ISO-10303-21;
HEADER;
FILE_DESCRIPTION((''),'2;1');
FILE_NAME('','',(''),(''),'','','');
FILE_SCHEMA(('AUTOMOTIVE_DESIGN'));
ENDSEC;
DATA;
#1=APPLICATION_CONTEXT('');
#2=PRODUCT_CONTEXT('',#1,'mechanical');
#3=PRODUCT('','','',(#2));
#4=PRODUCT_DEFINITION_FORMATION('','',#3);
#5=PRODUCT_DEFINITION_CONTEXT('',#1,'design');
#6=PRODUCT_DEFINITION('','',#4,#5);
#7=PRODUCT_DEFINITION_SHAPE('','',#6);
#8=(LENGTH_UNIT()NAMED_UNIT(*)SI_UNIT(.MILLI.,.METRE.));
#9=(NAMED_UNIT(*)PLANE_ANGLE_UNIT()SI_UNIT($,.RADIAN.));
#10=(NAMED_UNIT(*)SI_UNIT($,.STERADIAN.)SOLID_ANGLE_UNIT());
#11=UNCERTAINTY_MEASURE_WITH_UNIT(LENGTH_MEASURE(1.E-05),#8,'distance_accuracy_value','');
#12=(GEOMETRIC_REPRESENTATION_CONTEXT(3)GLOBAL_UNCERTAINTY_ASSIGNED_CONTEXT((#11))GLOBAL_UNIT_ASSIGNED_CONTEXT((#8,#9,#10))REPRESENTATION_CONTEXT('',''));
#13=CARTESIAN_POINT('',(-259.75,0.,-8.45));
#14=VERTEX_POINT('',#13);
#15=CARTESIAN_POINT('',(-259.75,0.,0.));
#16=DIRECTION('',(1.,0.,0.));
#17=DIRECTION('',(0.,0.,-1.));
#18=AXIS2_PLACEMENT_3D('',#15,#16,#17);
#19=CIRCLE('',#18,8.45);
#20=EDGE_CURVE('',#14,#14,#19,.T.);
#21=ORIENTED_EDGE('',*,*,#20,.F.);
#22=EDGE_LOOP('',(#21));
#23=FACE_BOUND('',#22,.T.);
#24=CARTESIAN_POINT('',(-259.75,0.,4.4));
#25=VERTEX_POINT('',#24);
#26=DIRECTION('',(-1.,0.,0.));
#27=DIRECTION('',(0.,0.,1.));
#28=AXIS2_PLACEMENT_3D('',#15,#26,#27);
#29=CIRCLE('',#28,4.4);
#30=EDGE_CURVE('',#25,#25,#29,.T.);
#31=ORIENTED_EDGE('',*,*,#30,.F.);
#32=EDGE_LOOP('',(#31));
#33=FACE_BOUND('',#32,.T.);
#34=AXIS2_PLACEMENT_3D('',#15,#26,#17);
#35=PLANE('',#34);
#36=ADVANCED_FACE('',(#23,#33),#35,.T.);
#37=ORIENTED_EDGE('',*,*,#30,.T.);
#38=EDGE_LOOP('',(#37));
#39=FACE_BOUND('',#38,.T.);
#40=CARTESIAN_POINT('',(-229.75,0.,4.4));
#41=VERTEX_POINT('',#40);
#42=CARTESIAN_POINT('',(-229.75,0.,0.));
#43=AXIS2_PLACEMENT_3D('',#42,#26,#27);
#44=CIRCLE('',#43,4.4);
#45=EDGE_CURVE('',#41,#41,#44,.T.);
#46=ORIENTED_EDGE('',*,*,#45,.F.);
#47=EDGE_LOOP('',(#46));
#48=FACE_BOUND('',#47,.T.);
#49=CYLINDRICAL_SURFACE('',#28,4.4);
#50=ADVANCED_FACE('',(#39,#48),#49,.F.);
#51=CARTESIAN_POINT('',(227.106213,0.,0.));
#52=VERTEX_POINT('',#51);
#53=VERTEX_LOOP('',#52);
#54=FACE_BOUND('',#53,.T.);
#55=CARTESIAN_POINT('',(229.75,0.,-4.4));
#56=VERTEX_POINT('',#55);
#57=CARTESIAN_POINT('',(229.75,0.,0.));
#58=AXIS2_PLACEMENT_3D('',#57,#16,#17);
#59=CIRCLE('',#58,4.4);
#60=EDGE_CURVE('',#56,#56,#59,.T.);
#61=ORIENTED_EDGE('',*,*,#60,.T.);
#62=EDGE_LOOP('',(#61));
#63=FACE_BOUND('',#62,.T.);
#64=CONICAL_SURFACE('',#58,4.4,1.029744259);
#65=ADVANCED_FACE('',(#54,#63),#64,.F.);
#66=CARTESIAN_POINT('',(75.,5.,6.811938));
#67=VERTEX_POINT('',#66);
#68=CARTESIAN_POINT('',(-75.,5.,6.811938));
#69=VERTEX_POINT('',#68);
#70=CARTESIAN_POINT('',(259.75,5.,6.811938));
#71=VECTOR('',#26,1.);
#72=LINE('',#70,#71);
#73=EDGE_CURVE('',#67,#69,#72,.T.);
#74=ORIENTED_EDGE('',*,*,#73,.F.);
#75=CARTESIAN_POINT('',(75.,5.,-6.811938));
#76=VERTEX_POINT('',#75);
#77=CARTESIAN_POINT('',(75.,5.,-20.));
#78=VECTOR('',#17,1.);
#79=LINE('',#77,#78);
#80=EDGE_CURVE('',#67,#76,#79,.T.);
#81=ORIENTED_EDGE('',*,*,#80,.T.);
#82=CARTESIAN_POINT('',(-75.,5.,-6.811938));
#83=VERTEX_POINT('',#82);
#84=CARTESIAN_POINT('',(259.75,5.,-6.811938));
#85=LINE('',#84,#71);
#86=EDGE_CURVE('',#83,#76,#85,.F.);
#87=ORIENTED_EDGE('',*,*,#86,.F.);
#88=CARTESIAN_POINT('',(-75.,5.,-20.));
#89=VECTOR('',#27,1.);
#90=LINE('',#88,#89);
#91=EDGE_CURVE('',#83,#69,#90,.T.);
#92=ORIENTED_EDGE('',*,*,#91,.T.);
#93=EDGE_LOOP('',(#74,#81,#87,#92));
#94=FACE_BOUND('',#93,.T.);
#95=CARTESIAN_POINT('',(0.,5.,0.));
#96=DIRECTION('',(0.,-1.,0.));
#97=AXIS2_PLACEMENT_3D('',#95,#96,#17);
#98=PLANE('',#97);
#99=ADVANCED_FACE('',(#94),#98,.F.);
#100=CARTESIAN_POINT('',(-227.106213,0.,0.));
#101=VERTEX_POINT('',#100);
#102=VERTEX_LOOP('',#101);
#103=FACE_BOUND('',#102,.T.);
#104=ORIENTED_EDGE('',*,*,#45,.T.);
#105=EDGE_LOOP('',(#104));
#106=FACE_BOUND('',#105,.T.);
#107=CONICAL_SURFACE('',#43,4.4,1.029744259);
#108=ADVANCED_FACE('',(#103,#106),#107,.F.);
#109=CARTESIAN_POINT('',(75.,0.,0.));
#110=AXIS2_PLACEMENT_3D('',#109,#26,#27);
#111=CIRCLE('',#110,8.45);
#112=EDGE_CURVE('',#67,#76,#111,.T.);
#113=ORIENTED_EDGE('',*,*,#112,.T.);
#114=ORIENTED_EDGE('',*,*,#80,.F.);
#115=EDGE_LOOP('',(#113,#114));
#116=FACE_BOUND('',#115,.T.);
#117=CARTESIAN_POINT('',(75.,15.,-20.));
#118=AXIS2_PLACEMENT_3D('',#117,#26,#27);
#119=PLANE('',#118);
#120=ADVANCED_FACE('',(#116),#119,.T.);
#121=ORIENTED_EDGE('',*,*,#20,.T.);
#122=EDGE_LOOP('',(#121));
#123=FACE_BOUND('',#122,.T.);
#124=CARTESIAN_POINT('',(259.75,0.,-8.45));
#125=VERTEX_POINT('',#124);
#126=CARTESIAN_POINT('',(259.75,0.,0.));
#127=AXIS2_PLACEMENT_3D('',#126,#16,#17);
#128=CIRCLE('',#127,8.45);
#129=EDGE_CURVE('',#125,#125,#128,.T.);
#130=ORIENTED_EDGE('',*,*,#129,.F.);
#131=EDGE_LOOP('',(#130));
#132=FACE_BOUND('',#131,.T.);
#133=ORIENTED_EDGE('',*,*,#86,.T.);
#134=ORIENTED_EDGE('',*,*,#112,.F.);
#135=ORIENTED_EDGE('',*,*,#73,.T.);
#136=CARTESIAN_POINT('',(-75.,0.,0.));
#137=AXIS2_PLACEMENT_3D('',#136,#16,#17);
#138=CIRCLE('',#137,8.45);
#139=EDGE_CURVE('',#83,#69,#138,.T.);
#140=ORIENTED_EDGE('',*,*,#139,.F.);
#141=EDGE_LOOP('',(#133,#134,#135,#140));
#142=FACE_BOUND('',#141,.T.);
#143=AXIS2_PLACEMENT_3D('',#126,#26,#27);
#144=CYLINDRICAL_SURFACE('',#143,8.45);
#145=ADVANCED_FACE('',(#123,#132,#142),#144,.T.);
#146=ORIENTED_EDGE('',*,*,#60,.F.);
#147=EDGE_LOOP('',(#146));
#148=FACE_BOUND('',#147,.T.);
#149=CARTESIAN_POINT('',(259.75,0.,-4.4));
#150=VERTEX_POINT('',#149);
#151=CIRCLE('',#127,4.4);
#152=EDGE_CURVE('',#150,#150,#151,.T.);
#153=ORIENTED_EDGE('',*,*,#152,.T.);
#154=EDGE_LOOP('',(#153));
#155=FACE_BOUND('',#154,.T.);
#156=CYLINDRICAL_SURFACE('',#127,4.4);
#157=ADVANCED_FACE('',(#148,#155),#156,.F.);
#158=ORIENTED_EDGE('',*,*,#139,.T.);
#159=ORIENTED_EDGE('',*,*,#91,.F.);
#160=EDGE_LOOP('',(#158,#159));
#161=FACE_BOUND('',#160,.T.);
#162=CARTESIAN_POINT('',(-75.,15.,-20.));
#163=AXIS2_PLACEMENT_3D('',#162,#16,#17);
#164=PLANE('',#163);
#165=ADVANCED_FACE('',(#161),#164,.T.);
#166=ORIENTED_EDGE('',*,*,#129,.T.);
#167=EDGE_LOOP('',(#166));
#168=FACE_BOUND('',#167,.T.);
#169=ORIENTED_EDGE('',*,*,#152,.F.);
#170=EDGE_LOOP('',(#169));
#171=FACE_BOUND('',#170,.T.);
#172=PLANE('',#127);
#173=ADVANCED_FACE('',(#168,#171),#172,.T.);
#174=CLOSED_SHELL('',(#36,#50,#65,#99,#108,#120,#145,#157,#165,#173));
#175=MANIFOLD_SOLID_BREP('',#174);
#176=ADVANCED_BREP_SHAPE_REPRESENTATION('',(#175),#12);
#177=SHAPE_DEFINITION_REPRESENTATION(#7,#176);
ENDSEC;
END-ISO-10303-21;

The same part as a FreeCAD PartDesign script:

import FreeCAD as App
import Part
import Sketcher

V = App.Vector
Q = App.Units.Quantity

doc = App.newDocument("Part")
body = doc.addObject("PartDesign::Body", "Body")

# Sketch on YZ plane
sketch1 = body.newObject("Sketcher::SketchObject", "Sketch")
sketch1.AttachmentSupport = (doc.getObject("YZ_Plane"), [""])
sketch1.MapMode = "FlatFace"
sketch1.addGeometry(Part.LineSegment(V(8, 10, 0), V(-8, 10, 0)), False)
sketch1.addGeometry(Part.LineSegment(V(-8, 10, 0), V(-8, -10, 0)), False)
sketch1.addGeometry(Part.LineSegment(V(-8, -10, 0), V(8, -10, 0)), False)
sketch1.addGeometry(Part.LineSegment(V(8, -10, 0), V(8, 10, 0)), False)
sketch1.addConstraint(Sketcher.Constraint("Coincident", 0, 2, 1, 1))
sketch1.addConstraint(Sketcher.Constraint("Coincident", 1, 2, 2, 1))
sketch1.addConstraint(Sketcher.Constraint("Coincident", 2, 2, 3, 1))
sketch1.addConstraint(Sketcher.Constraint("Coincident", 3, 2, 0, 1))
sketch1.addConstraint(Sketcher.Constraint("Horizontal", 0))
sketch1.addConstraint(Sketcher.Constraint("Vertical", 1))
sketch1.addConstraint(Sketcher.Constraint("Horizontal", 2))
sketch1.addConstraint(Sketcher.Constraint("Vertical", 3))
sketch1.addConstraint(Sketcher.Constraint("Symmetric", 0, 2, 2, 2, -1, 1))
sketch1.addConstraint(Sketcher.Constraint("DistanceY", 1, 2, 1, 1, Q("20 mm")))
sketch1.addConstraint(Sketcher.Constraint("DistanceX", 0, 2, 0, 1, Q("16.9 mm")))
pad1 = body.newObject("PartDesign::Pad", "Pad")
pad1.Profile = sketch1
pad1.Length = 47.5
pad1.Midplane = True

# Sketch on YZ plane
sketch2 = body.newObject("Sketcher::SketchObject", "Sketch001")
sketch2.AttachmentSupport = (doc.getObject("YZ_Plane"), [""])
sketch2.MapMode = "FlatFace"
sketch2.AttachmentOffset = App.Placement(V(0, 0, 23.75), App.Rotation())
sketch2.addGeometry(Part.Circle(V(0, 0, 0), V(0, 0, 1), 8), False)
sketch2.addConstraint(Sketcher.Constraint("Coincident", 0, 3, -1, 1))
sketch2.addConstraint(Sketcher.Constraint("Diameter", 0, Q("16.9 mm")))
pad2 = body.newObject("PartDesign::Pad", "Pad001")
pad2.Profile = sketch2
pad2.Length = 236

# Sketch on XZ plane
sketch3 = body.newObject("Sketcher::SketchObject", "Sketch002")
sketch3.AttachmentSupport = (doc.getObject("XZ_Plane"), [""])
sketch3.MapMode = "FlatFace"
sketch3.addGeometry(Part.LineSegment(V(227.1, 0, 0), V(259.8, 0, 0)), False)
sketch3.addGeometry(Part.LineSegment(V(259.8, 0, 0), V(259.8, -4.4, 0)), False)
sketch3.addGeometry(Part.LineSegment(V(259.8, -4.4, 0), V(229.8, -4.4, 0)), False)
sketch3.addGeometry(Part.LineSegment(V(229.8, -4.4, 0), V(227.1, 0, 0)), False)
sketch3.addConstraint(Sketcher.Constraint("Coincident", 0, 2, 1, 1))
sketch3.addConstraint(Sketcher.Constraint("Coincident", 1, 2, 2, 1))
sketch3.addConstraint(Sketcher.Constraint("Coincident", 2, 2, 3, 1))
sketch3.addConstraint(Sketcher.Constraint("Coincident", 3, 2, 0, 1))
sketch3.addConstraint(Sketcher.Constraint("Horizontal", 0))
sketch3.addConstraint(Sketcher.Constraint("Vertical", 1))
sketch3.addConstraint(Sketcher.Constraint("Horizontal", 2))
sketch3.addConstraint(Sketcher.Constraint("PointOnObject", 0, 2, -1))
sketch3.addConstraint(Sketcher.Constraint("DistanceX", 2, 2, 2, 1, Q("30 mm")))
sketch3.addConstraint(Sketcher.Constraint("Angle", 3, Q("121 deg")))
sketch3.addConstraint(Sketcher.Constraint("DistanceY", 1, 2, 1, 1, Q("4.4 mm")))
sketch3.addConstraint(Sketcher.Constraint("DistanceX", -1, 1, 0, 2, Q("259.75 mm")))
groove = body.newObject("PartDesign::Groove", "Groove")
groove.Profile = sketch3
groove.ReferenceAxis = (sketch3, ["H_Axis"])
groove.Angle = 360
doc.recompute()

mirrored = body.newObject("PartDesign::Mirrored", "Mirrored")
mirrored.Originals = [pad2, groove]
mirrored.MirrorPlane = (doc.getObject("YZ_Plane"), [""])
body.Tip = mirrored

# Sketch on YZ plane
sketch4 = body.newObject("Sketcher::SketchObject", "Sketch003")
sketch4.AttachmentSupport = (doc.getObject("YZ_Plane"), [""])
sketch4.MapMode = "FlatFace"
sketch4.addGeometry(Part.Circle(V(0, 0, 0), V(0, 0, 1), 18), False)
sketch4.addGeometry(Part.Circle(V(0, 0, 0), V(0, 0, 1), 8), False)
sketch4.addConstraint(Sketcher.Constraint("Coincident", 0, 3, -1, 1))
sketch4.addConstraint(Sketcher.Constraint("Coincident", 1, 3, -1, 1))
sketch4.addConstraint(Sketcher.Constraint("Diameter", 0, Q("36.9 mm")))
sketch4.addConstraint(Sketcher.Constraint("Diameter", 1, Q("16.9 mm")))
pocket1 = body.newObject("PartDesign::Pocket", "Pocket")
pocket1.Profile = sketch4
pocket1.Length = 60
pocket1.Midplane = True

# Sketch on XZ plane
sketch5 = body.newObject("Sketcher::SketchObject", "Sketch004")
sketch5.AttachmentSupport = (doc.getObject("XZ_Plane"), [""])
sketch5.MapMode = "FlatFace"
sketch5.AttachmentOffset = App.Placement(V(0, 0, -5), App.Rotation())
sketch5.addGeometry(Part.LineSegment(V(-75, -20, 0), V(-75, 20, 0)), False)
sketch5.addGeometry(Part.LineSegment(V(-75, 20, 0), V(75, 20, 0)), False)
sketch5.addGeometry(Part.LineSegment(V(75, 20, 0), V(75, -20, 0)), False)
sketch5.addGeometry(Part.LineSegment(V(75, -20, 0), V(-75, -20, 0)), False)
sketch5.addConstraint(Sketcher.Constraint("Coincident", 0, 2, 1, 1))
sketch5.addConstraint(Sketcher.Constraint("Coincident", 1, 2, 2, 1))
sketch5.addConstraint(Sketcher.Constraint("Coincident", 2, 2, 3, 1))
sketch5.addConstraint(Sketcher.Constraint("Coincident", 3, 2, 0, 1))
sketch5.addConstraint(Sketcher.Constraint("Vertical", 0))
sketch5.addConstraint(Sketcher.Constraint("Horizontal", 1))
sketch5.addConstraint(Sketcher.Constraint("Vertical", 2))
sketch5.addConstraint(Sketcher.Constraint("Horizontal", 3))
sketch5.addConstraint(Sketcher.Constraint("Symmetric", 0, 2, 2, 2, -1, 1))
sketch5.addConstraint(Sketcher.Constraint("DistanceX", 1, 1, 1, 2, Q("150 mm")))
sketch5.addConstraint(Sketcher.Constraint("DistanceY", 0, 1, 0, 2, Q("40 mm")))
pocket2 = body.newObject("PartDesign::Pocket", "Pocket001")
pocket2.Profile = sketch5
pocket2.Length = 10

doc.recompute()
